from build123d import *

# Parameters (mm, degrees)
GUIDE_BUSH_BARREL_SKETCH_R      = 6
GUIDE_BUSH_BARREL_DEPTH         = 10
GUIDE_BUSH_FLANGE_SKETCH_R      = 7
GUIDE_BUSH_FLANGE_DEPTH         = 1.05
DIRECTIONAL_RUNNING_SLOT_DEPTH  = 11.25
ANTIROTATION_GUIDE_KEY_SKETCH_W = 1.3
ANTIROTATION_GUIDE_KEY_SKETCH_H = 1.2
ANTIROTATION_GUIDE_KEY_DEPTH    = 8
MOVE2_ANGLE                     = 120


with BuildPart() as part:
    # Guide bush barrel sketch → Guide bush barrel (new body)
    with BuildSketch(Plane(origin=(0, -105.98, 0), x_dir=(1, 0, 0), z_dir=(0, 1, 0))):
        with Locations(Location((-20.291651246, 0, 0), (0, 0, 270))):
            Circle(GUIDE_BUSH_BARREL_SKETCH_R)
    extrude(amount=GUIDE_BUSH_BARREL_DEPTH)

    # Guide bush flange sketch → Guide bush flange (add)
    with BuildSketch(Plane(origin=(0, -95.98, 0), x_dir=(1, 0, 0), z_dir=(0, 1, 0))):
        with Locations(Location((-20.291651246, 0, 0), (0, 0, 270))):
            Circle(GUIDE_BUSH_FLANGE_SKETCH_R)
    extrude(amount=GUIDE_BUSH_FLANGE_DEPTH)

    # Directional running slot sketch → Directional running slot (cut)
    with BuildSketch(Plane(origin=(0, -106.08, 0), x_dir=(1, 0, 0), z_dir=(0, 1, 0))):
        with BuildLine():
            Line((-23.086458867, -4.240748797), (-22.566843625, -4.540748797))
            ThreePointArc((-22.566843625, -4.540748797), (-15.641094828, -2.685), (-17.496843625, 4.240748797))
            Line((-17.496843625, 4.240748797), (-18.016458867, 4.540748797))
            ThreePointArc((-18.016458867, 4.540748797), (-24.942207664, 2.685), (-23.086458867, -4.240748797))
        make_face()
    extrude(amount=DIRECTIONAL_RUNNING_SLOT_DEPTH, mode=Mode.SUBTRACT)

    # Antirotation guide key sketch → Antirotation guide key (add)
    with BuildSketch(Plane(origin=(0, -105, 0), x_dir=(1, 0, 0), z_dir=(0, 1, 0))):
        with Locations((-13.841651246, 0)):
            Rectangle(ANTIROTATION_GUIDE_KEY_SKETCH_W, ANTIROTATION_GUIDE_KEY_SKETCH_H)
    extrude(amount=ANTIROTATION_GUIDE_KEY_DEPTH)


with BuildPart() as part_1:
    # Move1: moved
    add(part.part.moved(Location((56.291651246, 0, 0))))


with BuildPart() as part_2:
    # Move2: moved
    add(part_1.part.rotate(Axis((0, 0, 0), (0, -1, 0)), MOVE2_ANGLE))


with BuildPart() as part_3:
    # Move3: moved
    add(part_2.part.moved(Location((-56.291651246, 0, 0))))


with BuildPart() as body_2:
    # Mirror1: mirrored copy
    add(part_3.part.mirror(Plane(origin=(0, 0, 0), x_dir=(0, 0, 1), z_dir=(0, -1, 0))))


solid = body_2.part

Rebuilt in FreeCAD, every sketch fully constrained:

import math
import FreeCAD as App
import Part
import Sketcher
Q = App.Units.Quantity


def add_polygon(sketch, points):
    """Adds a closed chain of lines whose ends are joined by coincident constraints."""
    first, n = sketch.GeometryCount, len(points)
    for a, b in zip(points, points[1:] + points[:1]):
        sketch.addGeometry(Part.LineSegment(App.Vector(*a, 0), App.Vector(*b, 0)), False)
    for i in range(n):
        sketch.addConstraint(Sketcher.Constraint("Coincident", first + i, 2, first + (i + 1) % n, 1))

doc = App.newDocument("Part")
body = doc.addObject("PartDesign::Body", "Body")

# Sketch on XZ plane
sketch1 = body.newObject("Sketcher::SketchObject", "Sketch")
sketch1.AttachmentSupport = (doc.getObject("XZ_Plane"), [""])
sketch1.MapMode = "FlatFace"
sketch1.AttachmentOffset = App.Placement(App.Vector(0, 0, 105.98), App.Rotation())
sketch1.addGeometry(Part.Circle(App.Vector(-20, 0, 0), App.Vector(0, 0, 1), 6), False)
sketch1.addConstraint([
    Sketcher.Constraint("PointOnObject", 0, 3, -1),
    Sketcher.Constraint("Diameter", 0, 12.0),
    Sketcher.Constraint("DistanceX", 0, 3, -1, 1, 20.291651),
])
pad1 = body.newObject("PartDesign::Pad", "Pad")
pad1.Profile = sketch1
pad1.Length = 10
pad1.Reversed = True

# Sketch on XZ plane
sketch2 = body.newObject("Sketcher::SketchObject", "Sketch001")
sketch2.AttachmentSupport = (doc.getObject("XZ_Plane"), [""])
sketch2.MapMode = "FlatFace"
sketch2.AttachmentOffset = App.Placement(App.Vector(0, 0, 95.98), App.Rotation())
sketch2.addGeometry(Part.Circle(App.Vector(-20, 0, 0), App.Vector(0, 0, 1), 7), False)
sketch2.addConstraint([
    Sketcher.Constraint("PointOnObject", 0, 3, -1),
    Sketcher.Constraint("Diameter", 0, 14.0),
    Sketcher.Constraint("DistanceX", 0, 3, -1, 1, 20.291651),
])
pad2 = body.newObject("PartDesign::Pad", "Pad001")
pad2.Profile = sketch2
pad2.Length = 1.05
pad2.Reversed = True

# Sketch on XZ plane
sketch3 = body.newObject("Sketcher::SketchObject", "Sketch002")
sketch3.AttachmentSupport = (doc.getObject("XZ_Plane"), [""])
sketch3.MapMode = "FlatFace"
sketch3.AttachmentOffset = App.Placement(App.Vector(0, 0, 106.08), App.Rotation())
sketch3.addGeometry([
    Part.LineSegment(App.Vector(-23.1, 4.2, 0), App.Vector(-22.6, 4.5, 0)),
    Part.ArcOfCircle(Part.Circle(App.Vector(-20, 0.1, 0), App.Vector(0, 0, 1), 5.1), math.radians(-60), math.radians(120)),
    Part.LineSegment(App.Vector(-17.5, -4.2, 0), App.Vector(-18, -4.5, 0)),
    Part.ArcOfCircle(Part.Circle(App.Vector(-20.6, -0.1, 0), App.Vector(0, 0, 1), 5.1), math.radians(120), math.radians(300)),
], False)
sketch3.addConstraint([
    Sketcher.Constraint("Tangent", 0, 2, 1, 2),
    Sketcher.Constraint("Tangent", 1, 1, 2, 1),
    Sketcher.Constraint("Tangent", 2, 2, 3, 2),
    Sketcher.Constraint("Tangent", 3, 1, 0, 1),
    Sketcher.Constraint("Equal", 1, 3),
    Sketcher.Constraint("Angle", 0, Q("30 deg")),
    Sketcher.Constraint("Radius", 1, 5.07),
    Sketcher.Constraint("Distance", 0, 0.6),
    Sketcher.Constraint("DistanceY", -1, 1, 1, 3, 0.15),
    Sketcher.Constraint("DistanceX", 3, 3, -1, 1, 20.551459),
])
pocket1 = body.newObject("PartDesign::Pocket", "Pocket")
pocket1.Profile = sketch3
pocket1.Length = 11.25

# Sketch on XZ plane
sketch4 = body.newObject("Sketcher::SketchObject", "Sketch003")
sketch4.AttachmentSupport = (doc.getObject("XZ_Plane"), [""])
sketch4.MapMode = "FlatFace"
sketch4.AttachmentOffset = App.Placement(App.Vector(0, 0, 105), App.Rotation())
add_polygon(sketch4, [(-14.5, -0.6), (-14.5, 0.6), (-13.2, 0.6), (-13.2, -0.6)])  # lines 0-3
sketch4.addConstraint([
    Sketcher.Constraint("Vertical", 0),
    Sketcher.Constraint("Horizontal", 1),
    Sketcher.Constraint("Vertical", 2),
    Sketcher.Constraint("Horizontal", 3),
    Sketcher.Constraint("DistanceX", 1, 1, 1, 2, 1.3),
    Sketcher.Constraint("DistanceY", 0, 1, 0, 2, 1.2),
    Sketcher.Constraint("DistanceY", -1, 1, 0, 2, 0.6),
    Sketcher.Constraint("DistanceX", 0, 2, -1, 1, 14.491651),
])
pad3 = body.newObject("PartDesign::Pad", "Pad002")
pad3.Profile = sketch4
pad3.Length = 8
pad3.Reversed = True
body2 = doc.addObject("PartDesign::Body", "Body001")
doc.recompute()

body.Placement = App.Placement(App.Vector(56.291651, 0, 0), App.Rotation(App.Vector(0, 0, 1), 0))
boolean = body2.newObject("PartDesign::Boolean", "Boolean")
boolean.Type = "Fuse"
boolean.addObjects([body])
body3 = doc.addObject("PartDesign::Body", "Body002")
doc.recompute()

body2.Placement = App.Placement(App.Vector(0, 0, 0), App.Rotation(App.Vector(0, -1, 0), 120))
boolean2 = body3.newObject("PartDesign::Boolean", "Boolean001")
boolean2.Type = "Fuse"
boolean2.addObjects([body2])
body4 = doc.addObject("PartDesign::Body", "Body003")
doc.recompute()

body3.Placement = App.Placement(App.Vector(-56.291651, 0, 0), App.Rotation(App.Vector(0, 0, 1), 0))
boolean3 = body4.newObject("PartDesign::Boolean", "Boolean002")
boolean3.Type = "Fuse"
boolean3.addObjects([body3])
body5 = doc.addObject("PartDesign::Body", "Body004")
doc.recompute()

mirroring = doc.addObject("Part::Mirroring", "Mirroring")
mirroring.Source = body4
mirroring.Base = App.Vector(0, 0, 0)
mirroring.Normal = App.Vector(0, -1, 0)
body5.BaseFeature = mirroring
doc.recompute()
body4.Visibility = False
mirroring.Visibility = False

doc.recompute()
